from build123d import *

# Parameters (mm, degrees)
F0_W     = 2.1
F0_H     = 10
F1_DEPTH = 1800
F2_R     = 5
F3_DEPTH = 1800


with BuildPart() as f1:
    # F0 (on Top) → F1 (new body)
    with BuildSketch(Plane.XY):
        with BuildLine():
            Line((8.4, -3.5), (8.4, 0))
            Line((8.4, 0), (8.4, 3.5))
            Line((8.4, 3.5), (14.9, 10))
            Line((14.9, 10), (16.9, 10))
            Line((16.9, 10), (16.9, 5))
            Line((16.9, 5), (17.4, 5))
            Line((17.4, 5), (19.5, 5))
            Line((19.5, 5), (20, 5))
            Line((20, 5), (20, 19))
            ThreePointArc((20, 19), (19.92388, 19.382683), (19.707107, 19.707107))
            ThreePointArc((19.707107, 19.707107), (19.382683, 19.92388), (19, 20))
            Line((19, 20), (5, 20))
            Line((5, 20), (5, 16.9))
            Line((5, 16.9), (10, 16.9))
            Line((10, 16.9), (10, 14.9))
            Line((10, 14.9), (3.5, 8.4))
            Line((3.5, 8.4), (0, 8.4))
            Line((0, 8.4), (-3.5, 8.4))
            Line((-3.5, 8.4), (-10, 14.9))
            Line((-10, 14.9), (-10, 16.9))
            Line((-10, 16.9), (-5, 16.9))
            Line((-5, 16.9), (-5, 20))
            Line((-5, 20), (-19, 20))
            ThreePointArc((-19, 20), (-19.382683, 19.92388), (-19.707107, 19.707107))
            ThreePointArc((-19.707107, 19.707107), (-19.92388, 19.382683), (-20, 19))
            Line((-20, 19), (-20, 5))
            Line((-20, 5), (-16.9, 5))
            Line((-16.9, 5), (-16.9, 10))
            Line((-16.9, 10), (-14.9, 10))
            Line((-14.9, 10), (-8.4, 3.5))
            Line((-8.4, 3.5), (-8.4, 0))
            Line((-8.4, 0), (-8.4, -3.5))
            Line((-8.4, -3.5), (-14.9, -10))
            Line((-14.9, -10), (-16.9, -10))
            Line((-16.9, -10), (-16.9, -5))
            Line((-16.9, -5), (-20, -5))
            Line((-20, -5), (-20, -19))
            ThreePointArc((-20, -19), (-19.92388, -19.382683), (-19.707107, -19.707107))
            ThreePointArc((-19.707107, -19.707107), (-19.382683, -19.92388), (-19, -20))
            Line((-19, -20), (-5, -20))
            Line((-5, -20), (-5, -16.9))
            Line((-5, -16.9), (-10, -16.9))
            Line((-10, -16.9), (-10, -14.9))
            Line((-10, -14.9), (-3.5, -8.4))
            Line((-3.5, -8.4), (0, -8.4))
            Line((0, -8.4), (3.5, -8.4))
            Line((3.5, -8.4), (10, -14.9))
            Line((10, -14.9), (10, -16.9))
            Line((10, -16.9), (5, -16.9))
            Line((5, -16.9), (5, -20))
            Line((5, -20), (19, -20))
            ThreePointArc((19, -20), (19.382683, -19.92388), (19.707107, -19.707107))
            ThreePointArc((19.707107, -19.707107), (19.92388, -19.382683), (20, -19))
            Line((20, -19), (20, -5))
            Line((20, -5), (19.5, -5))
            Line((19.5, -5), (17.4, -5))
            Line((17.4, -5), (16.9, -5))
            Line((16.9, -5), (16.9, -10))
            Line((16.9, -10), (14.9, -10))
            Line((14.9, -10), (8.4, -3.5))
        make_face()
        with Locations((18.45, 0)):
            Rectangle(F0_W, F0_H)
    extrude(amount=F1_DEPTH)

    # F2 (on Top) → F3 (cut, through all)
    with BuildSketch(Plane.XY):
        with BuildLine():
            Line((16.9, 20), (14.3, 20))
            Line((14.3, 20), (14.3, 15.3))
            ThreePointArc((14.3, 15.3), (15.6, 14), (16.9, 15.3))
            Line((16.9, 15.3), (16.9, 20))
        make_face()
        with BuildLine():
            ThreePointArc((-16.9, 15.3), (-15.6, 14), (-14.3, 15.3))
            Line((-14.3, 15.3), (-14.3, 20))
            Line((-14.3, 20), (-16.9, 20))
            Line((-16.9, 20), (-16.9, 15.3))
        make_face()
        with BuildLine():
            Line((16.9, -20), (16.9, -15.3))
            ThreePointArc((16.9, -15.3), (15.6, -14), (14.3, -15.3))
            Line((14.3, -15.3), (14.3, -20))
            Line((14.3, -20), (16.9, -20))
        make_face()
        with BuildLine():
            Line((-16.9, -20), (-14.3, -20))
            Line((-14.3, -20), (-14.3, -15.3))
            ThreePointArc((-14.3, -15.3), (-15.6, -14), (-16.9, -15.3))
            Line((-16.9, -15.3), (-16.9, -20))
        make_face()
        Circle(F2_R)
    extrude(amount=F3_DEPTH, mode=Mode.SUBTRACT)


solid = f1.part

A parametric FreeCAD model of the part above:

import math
import FreeCAD as App
import Part
import Sketcher

doc = App.newDocument("Part")
params = doc.addObject("Spreadsheet::Sheet", "Params")
for row, (alias, value) in enumerate([
    ("sketch1_radius", "0.999999 mm"),
    ("sketch1_width", "14 mm"),
    ("sketch1_width2", "5 mm"),
    ("sketch1_width3", "7 mm"),
    ("sketch1_width4", "2 mm"),
    ("pad1_length", "1800 mm"),
    ("sketch2_diameter", "10 mm"),
    ("sketch2_radius", "1.3 mm"),
    ("sketch2_height", "4.7 mm"),
], start=1):
    params.set(f"A{row}", alias)
    params.set(f"B{row}", "=" + value)
    params.setAlias(f"B{row}", alias)

body = doc.addObject("PartDesign::Body", "Body")

# Sketch on XY plane
sketch1 = doc.addObject("Sketcher::SketchObject", "Sketch")
body.addObject(sketch1)
sketch1.AttachmentSupport = (doc.XY_Plane, [""])
sketch1.MapMode = "FlatFace"
sketch1.addGeometry([
    Part.LineSegment(App.Vector(19.5, 5, 0), App.Vector(20, 5, 0)),  # 0
    Part.LineSegment(App.Vector(20, 5, 0), App.Vector(20, 19, 0)),  # 1
    Part.ArcOfCircle(Part.Circle(App.Vector(19, 19, 0), App.Vector(0, 0, 1), 1), math.radians(0), math.radians(45)),  # 2
    Part.ArcOfCircle(Part.Circle(App.Vector(19, 19, 0), App.Vector(0, 0, 1), 1), math.radians(45), math.radians(90)),  # 3
    Part.LineSegment(App.Vector(19, 20, 0), App.Vector(5, 20, 0)),  # 4
    Part.LineSegment(App.Vector(5, 20, 0), App.Vector(5, 16.9, 0)),  # 5
    Part.LineSegment(App.Vector(5, 16.9, 0), App.Vector(10, 16.9, 0)),  # 6
    Part.LineSegment(App.Vector(10, 16.9, 0), App.Vector(10, 14.9, 0)),  # 7
    Part.LineSegment(App.Vector(10, 14.9, 0), App.Vector(3.5, 8.4, 0)),  # 8
    Part.LineSegment(App.Vector(3.5, 8.4, 0), App.Vector(-3.5, 8.4, 0)),  # 9
    Part.LineSegment(App.Vector(-3.5, 8.4, 0), App.Vector(-10, 14.9, 0)),  # 10
    Part.LineSegment(App.Vector(-10, 14.9, 0), App.Vector(-10, 16.9, 0)),  # 11
    Part.LineSegment(App.Vector(-10, 16.9, 0), App.Vector(-5, 16.9, 0)),  # 12
    Part.LineSegment(App.Vector(-5, 16.9, 0), App.Vector(-5, 20, 0)),  # 13
    Part.LineSegment(App.Vector(-5, 20, 0), App.Vector(-19, 20, 0)),  # 14
    Part.ArcOfCircle(Part.Circle(App.Vector(-19, 19, 0), App.Vector(0, 0, 1), 1), math.radians(90), math.radians(135)),  # 15
    Part.ArcOfCircle(Part.Circle(App.Vector(-19, 19, 0), App.Vector(0, 0, 1), 1), math.radians(135), math.radians(180)),  # 16
    Part.LineSegment(App.Vector(-20, 19, 0), App.Vector(-20, 5, 0)),  # 17
    Part.LineSegment(App.Vector(-20, 5, 0), App.Vector(-16.9, 5, 0)),  # 18
    Part.LineSegment(App.Vector(-16.9, 5, 0), App.Vector(-16.9, 10, 0)),  # 19
    Part.LineSegment(App.Vector(-16.9, 10, 0), App.Vector(-14.9, 10, 0)),  # 20
    Part.LineSegment(App.Vector(-14.9, 10, 0), App.Vector(-8.4, 3.5, 0)),  # 21
    Part.LineSegment(App.Vector(-8.4, 3.5, 0), App.Vector(-8.4, -3.5, 0)),  # 22
    Part.LineSegment(App.Vector(-8.4, -3.5, 0), App.Vector(-14.9, -10, 0)),  # 23
    Part.LineSegment(App.Vector(-14.9, -10, 0), App.Vector(-16.9, -10, 0)),  # 24
    Part.LineSegment(App.Vector(-16.9, -10, 0), App.Vector(-16.9, -5, 0)),  # 25
    Part.LineSegment(App.Vector(-16.9, -5, 0), App.Vector(-20, -5, 0)),  # 26
    Part.LineSegment(App.Vector(-20, -5, 0), App.Vector(-20, -19, 0)),  # 27
    Part.ArcOfCircle(Part.Circle(App.Vector(-19, -19, 0), App.Vector(0, 0, 1), 1), math.radians(180), math.radians(225)),  # 28
    Part.ArcOfCircle(Part.Circle(App.Vector(-19, -19, 0), App.Vector(0, 0, 1), 1), math.radians(-135), math.radians(-90)),  # 29
    Part.LineSegment(App.Vector(-19, -20, 0), App.Vector(-5, -20, 0)),  # 30
    Part.LineSegment(App.Vector(-5, -20, 0), App.Vector(-5, -16.9, 0)),  # 31
    Part.LineSegment(App.Vector(-5, -16.9, 0), App.Vector(-10, -16.9, 0)),  # 32
    Part.LineSegment(App.Vector(-10, -16.9, 0), App.Vector(-10, -14.9, 0)),  # 33
    Part.LineSegment(App.Vector(-10, -14.9, 0), App.Vector(-3.5, -8.4, 0)),  # 34
    Part.LineSegment(App.Vector(-3.5, -8.4, 0), App.Vector(3.5, -8.4, 0)),  # 35
    Part.LineSegment(App.Vector(3.5, -8.4, 0), App.Vector(10, -14.9, 0)),  # 36
    Part.LineSegment(App.Vector(10, -14.9, 0), App.Vector(10, -16.9, 0)),  # 37
    Part.LineSegment(App.Vector(10, -16.9, 0), App.Vector(5, -16.9, 0)),  # 38
    Part.LineSegment(App.Vector(5, -16.9, 0), App.Vector(5, -20, 0)),  # 39
    Part.LineSegment(App.Vector(5, -20, 0), App.Vector(19, -20, 0)),  # 40
    Part.ArcOfCircle(Part.Circle(App.Vector(19, -19, 0), App.Vector(0, 0, 1), 1), math.radians(-90), math.radians(-45)),  # 41
    Part.ArcOfCircle(Part.Circle(App.Vector(19, -19, 0), App.Vector(0, 0, 1), 1), math.radians(-45), math.radians(0)),  # 42
    Part.LineSegment(App.Vector(20, -19, 0), App.Vector(20, -5, 0)),  # 43
    Part.LineSegment(App.Vector(20, -5, 0), App.Vector(19.5, -5, 0)),  # 44
    Part.LineSegment(App.Vector(19.5, -5, 0), App.Vector(19.5, 5, 0)),  # 45
    Part.LineSegment(App.Vector(8.4, -3.5, 0), App.Vector(8.4, 3.5, 0)),  # 46
    Part.LineSegment(App.Vector(8.4, 3.5, 0), App.Vector(14.9, 10, 0)),  # 47
    Part.LineSegment(App.Vector(14.9, 10, 0), App.Vector(16.9, 10, 0)),  # 48
    Part.LineSegment(App.Vector(16.9, 10, 0), App.Vector(16.9, 5, 0)),  # 49
    Part.LineSegment(App.Vector(16.9, 5, 0), App.Vector(17.4, 5, 0)),  # 50
    Part.LineSegment(App.Vector(17.4, 5, 0), App.Vector(17.4, -5, 0)),  # 51
    Part.LineSegment(App.Vector(17.4, -5, 0), App.Vector(16.9, -5, 0)),  # 52
    Part.LineSegment(App.Vector(16.9, -5, 0), App.Vector(16.9, -10, 0)),  # 53
    Part.LineSegment(App.Vector(16.9, -10, 0), App.Vector(14.9, -10, 0)),  # 54
    Part.LineSegment(App.Vector(14.9, -10, 0), App.Vector(8.4, -3.5, 0)),  # 55
], False)
sketch1.addConstraint([
    Sketcher.Constraint("Coincident", 0, 2, 1, 1),
    Sketcher.Constraint("Tangent", 1, 2, 2, 1),
    Sketcher.Constraint("Tangent", 2, 2, 3, 1),
    Sketcher.Constraint("Tangent", 3, 2, 4, 1),
    Sketcher.Constraint("Coincident", 4, 2, 5, 1),
    Sketcher.Constraint("Coincident", 5, 2, 6, 1),
    Sketcher.Constraint("Coincident", 6, 2, 7, 1),
    Sketcher.Constraint("Coincident", 7, 2, 8, 1),
    Sketcher.Constraint("Coincident", 8, 2, 9, 1),
    Sketcher.Constraint("Coincident", 9, 2, 10, 1),
    Sketcher.Constraint("Coincident", 10, 2, 11, 1),
    Sketcher.Constraint("Coincident", 11, 2, 12, 1),
    Sketcher.Constraint("Coincident", 12, 2, 13, 1),
    Sketcher.Constraint("Coincident", 13, 2, 14, 1),
    Sketcher.Constraint("Tangent", 14, 2, 15, 1),
    Sketcher.Constraint("Tangent", 15, 2, 16, 1),
    Sketcher.Constraint("Tangent", 16, 2, 17, 1),
    Sketcher.Constraint("Coincident", 17, 2, 18, 1),
    Sketcher.Constraint("Coincident", 18, 2, 19, 1),
    Sketcher.Constraint("Coincident", 19, 2, 20, 1),
    Sketcher.Constraint("Coincident", 20, 2, 21, 1),
    Sketcher.Constraint("Coincident", 21, 2, 22, 1),
    Sketcher.Constraint("Coincident", 22, 2, 23, 1),
    Sketcher.Constraint("Coincident", 23, 2, 24, 1),
    Sketcher.Constraint("Coincident", 24, 2, 25, 1),
    Sketcher.Constraint("Coincident", 25, 2, 26, 1),
    Sketcher.Constraint("Coincident", 26, 2, 27, 1),
    Sketcher.Constraint("Tangent", 27, 2, 28, 1),
    Sketcher.Constraint("Tangent", 28, 2, 29, 1),
    Sketcher.Constraint("Tangent", 29, 2, 30, 1),
    Sketcher.Constraint("Coincident", 30, 2, 31, 1),
    Sketcher.Constraint("Coincident", 31, 2, 32, 1),
    Sketcher.Constraint("Coincident", 32, 2, 33, 1),
    Sketcher.Constraint("Coincident", 33, 2, 34, 1),
    Sketcher.Constraint("Coincident", 34, 2, 35, 1),
    Sketcher.Constraint("Coincident", 35, 2, 36, 1),
    Sketcher.Constraint("Coincident", 36, 2, 37, 1),
    Sketcher.Constraint("Coincident", 37, 2, 38, 1),
    Sketcher.Constraint("Coincident", 38, 2, 39, 1),
    Sketcher.Constraint("Coincident", 39, 2, 40, 1),
    Sketcher.Constraint("Tangent", 40, 2, 41, 1),
    Sketcher.Constraint("Tangent", 41, 2, 42, 1),
    Sketcher.Constraint("Tangent", 42, 2, 43, 1),
    Sketcher.Constraint("Coincident", 43, 2, 44, 1),
    Sketcher.Constraint("Coincident", 44, 2, 45, 1),
    Sketcher.Constraint("Coincident", 45, 2, 0, 1),
    Sketcher.Constraint("Coincident", 46, 2, 47, 1),
    Sketcher.Constraint("Coincident", 47, 2, 48, 1),
    Sketcher.Constraint("Coincident", 48, 2, 49, 1),
    Sketcher.Constraint("Coincident", 49, 2, 50, 1),
    Sketcher.Constraint("Coincident", 50, 2, 51, 1),
    Sketcher.Constraint("Coincident", 51, 2, 52, 1),
    Sketcher.Constraint("Coincident", 52, 2, 53, 1),
    Sketcher.Constraint("Coincident", 53, 2, 54, 1),
    Sketcher.Constraint("Coincident", 54, 2, 55, 1),
    Sketcher.Constraint("Coincident", 55, 2, 46, 1),
    Sketcher.Constraint("Horizontal", 0),
    Sketcher.Constraint("Vertical", 1),
    Sketcher.Constraint("Horizontal", 4),
    Sketcher.Constraint("Vertical", 5),
    Sketcher.Constraint("Horizontal", 6),
    Sketcher.Constraint("Vertical", 7),
    Sketcher.Constraint("Horizontal", 9),
    Sketcher.Constraint("Vertical", 11),
    Sketcher.Constraint("Horizontal", 12),
    Sketcher.Constraint("Vertical", 13),
    Sketcher.Constraint("Horizontal", 14),
    Sketcher.Constraint("Vertical", 17),
    Sketcher.Constraint("Horizontal", 18),
    Sketcher.Constraint("Vertical", 19),
    Sketcher.Constraint("Horizontal", 20),
    Sketcher.Constraint("Vertical", 22),
    Sketcher.Constraint("Horizontal", 24),
    Sketcher.Constraint("Vertical", 25),
    Sketcher.Constraint("Horizontal", 26),
    Sketcher.Constraint("Vertical", 27),
    Sketcher.Constraint("Horizontal", 30),
    Sketcher.Constraint("Vertical", 31),
    Sketcher.Constraint("Horizontal", 32),
    Sketcher.Constraint("Vertical", 33),
    Sketcher.Constraint("Horizontal", 35),
    Sketcher.Constraint("Vertical", 37),
    Sketcher.Constraint("Horizontal", 38),
    Sketcher.Constraint("Vertical", 39),
    Sketcher.Constraint("Horizontal", 40),
    Sketcher.Constraint("Vertical", 43),
    Sketcher.Constraint("Horizontal", 44),
    Sketcher.Constraint("Vertical", 45),
    Sketcher.Constraint("Vertical", 46),
    Sketcher.Constraint("Horizontal", 48),
    Sketcher.Constraint("Vertical", 49),
    Sketcher.Constraint("Horizontal", 50),
    Sketcher.Constraint("Vertical", 51),
    Sketcher.Constraint("Horizontal", 52),
    Sketcher.Constraint("Vertical", 53),
    Sketcher.Constraint("Horizontal", 54),
    Sketcher.Constraint("Equal", 2, 3),
    Sketcher.Constraint("Equal", 3, 15),
    Sketcher.Constraint("Equal", 15, 16),
    Sketcher.Constraint("Equal", 16, 28),
    Sketcher.Constraint("Equal", 28, 29),
    Sketcher.Constraint("Equal", 29, 41),
    Sketcher.Constraint("Equal", 41, 42),
    Sketcher.Constraint("Symmetric", 2, 3, 28, 3, -1, 1),
    Sketcher.Constraint("Symmetric", 15, 3, 41, 3, -1, 1),
    Sketcher.Constraint("Symmetric", 5, 2, 31, 2, -1, 1),
    Sketcher.Constraint("Symmetric", 7, 2, 33, 2, -1, 1),
    Sketcher.Constraint("Symmetric", 8, 2, 34, 2, -1, 1),
    Sketcher.Constraint("Symmetric", 10, 2, 36, 2, -1, 1),
    Sketcher.Constraint("Symmetric", 12, 2, 38, 2, -1, 1),
    Sketcher.Constraint("Symmetric", 22, 2, 46, 2, -1, 1),
    Sketcher.Constraint("Symmetric", 23, 2, 47, 2, -1, 1),
    Sketcher.Constraint("Symmetric", 25, 2, 49, 2, -1, 1),
    Sketcher.Constraint("Symmetric", 18, 2, 52, 2, -1, 1),
    Sketcher.Constraint("Symmetric", 20, 2, 54, 2, -1, 1),
    Sketcher.Constraint("Symmetric", 2, 3, 15, 3, -2),
    Sketcher.Constraint("Symmetric", 7, 2, 10, 2, -2),
    Sketcher.Constraint("Symmetric", 5, 2, 12, 2, -2),
    Sketcher.Constraint("Symmetric", 20, 2, 47, 2, -2),
    Sketcher.Constraint("Symmetric", 18, 2, 49, 2, -2),
    Sketcher.Constraint("Perpendicular", 8, 10),
    Sketcher.Constraint("Parallel", 10, 21),
    Sketcher.Constraint("Perpendicular", 21, 23),
    Sketcher.Constraint("Perpendicular", 34, 36),
    Sketcher.Constraint("Perpendicular", 47, 55),
    Sketcher.Constraint("Horizontal", 2, 2, 15, 2),
    Sketcher.Constraint("Horizontal", 0, 2, 17, 2),
    Sketcher.Constraint("Horizontal", 28, 2, 41, 2),
    Sketcher.Constraint("Horizontal", 26, 2, 43, 2),
    Sketcher.Constraint("Horizontal", 21, 2, 46, 2),
    Sketcher.Constraint("Vertical", 15, 2, 28, 2),
    Sketcher.Constraint("Equal", 44, 50),
    Sketcher.Constraint("Equal", 40, 1),
    Sketcher.Constraint("Equal", 26, 5),
    Sketcher.Constraint("Equal", 54, 7),
    Sketcher.Constraint("Equal", 38, 19),
    Sketcher.Constraint("Equal", 35, 22),
    Sketcher.Constraint("Equal", 10, 21),
    Sketcher.Constraint("Radius", 2, 0.999999),
    Sketcher.Constraint("DistanceX", 4, 2, 4, 1, 14.0),
    Sketcher.Constraint("DistanceX", 6, 1, 6, 2, 5.0),
    Sketcher.Constraint("DistanceX", 9, 2, 9, 1, 7.0),
    Sketcher.Constraint("DistanceX", 20, 1, 20, 2, 2.0),
    Sketcher.Constraint("DistanceY", 45, 1, 45, 2, 10.0),
    Sketcher.Constraint("DistanceX", 0, 1, 0, 2, 0.5),
    Sketcher.Constraint("DistanceX", 18, 1, 18, 2, 3.1),
    Sketcher.Constraint("DistanceX", -1, 1, 2, 2, 19.707107),
])
sketch1.setExpression("Constraints[138]", "Params.sketch1_radius")
sketch1.setExpression("Constraints[139]", "Params.sketch1_width")
sketch1.setExpression("Constraints[140]", "Params.sketch1_width2")
sketch1.setExpression("Constraints[141]", "Params.sketch1_width3")
sketch1.setExpression("Constraints[142]", "Params.sketch1_width4")
pad1 = doc.addObject("PartDesign::Pad", "Pad")
body.addObject(pad1)
pad1.Profile = sketch1
pad1.setExpression("Length", "Params.pad1_length")

# Sketch on XY plane
sketch2 = doc.addObject("Sketcher::SketchObject", "Sketch001")
body.addObject(sketch2)
sketch2.AttachmentSupport = (doc.XY_Plane, [""])
sketch2.MapMode = "FlatFace"
sketch2.addGeometry([
    Part.LineSegment(App.Vector(16.9, 20, 0), App.Vector(14.3, 20, 0)),  # 0
    Part.LineSegment(App.Vector(14.3, 20, 0), App.Vector(14.3, 15.3, 0)),  # 1
    Part.ArcOfCircle(Part.Circle(App.Vector(15.6, 15.3, 0), App.Vector(0, 0, 1), 1.3), math.radians(180), math.radians(360)),  # 2
    Part.LineSegment(App.Vector(16.9, 15.3, 0), App.Vector(16.9, 20, 0)),  # 3
    Part.ArcOfCircle(Part.Circle(App.Vector(-15.6, 15.3, 0), App.Vector(0, 0, 1), 1.3), math.radians(180), math.radians(360)),  # 4
    Part.LineSegment(App.Vector(-14.3, 15.3, 0), App.Vector(-14.3, 20, 0)),  # 5
    Part.LineSegment(App.Vector(-14.3, 20, 0), App.Vector(-16.9, 20, 0)),  # 6
    Part.LineSegment(App.Vector(-16.9, 20, 0), App.Vector(-16.9, 15.3, 0)),  # 7
    Part.LineSegment(App.Vector(16.9, -20, 0), App.Vector(16.9, -15.3, 0)),  # 8
    Part.ArcOfCircle(Part.Circle(App.Vector(15.6, -15.3, 0), App.Vector(0, 0, 1), 1.3), math.radians(0), math.radians(180)),  # 9
    Part.LineSegment(App.Vector(14.3, -15.3, 0), App.Vector(14.3, -20, 0)),  # 10
    Part.LineSegment(App.Vector(14.3, -20, 0), App.Vector(16.9, -20, 0)),  # 11
    Part.LineSegment(App.Vector(-16.9, -20, 0), App.Vector(-14.3, -20, 0)),  # 12
    Part.LineSegment(App.Vector(-14.3, -20, 0), App.Vector(-14.3, -15.3, 0)),  # 13
    Part.ArcOfCircle(Part.Circle(App.Vector(-15.6, -15.3, 0), App.Vector(0, 0, 1), 1.3), math.radians(0), math.radians(180)),  # 14
    Part.LineSegment(App.Vector(-16.9, -15.3, 0), App.Vector(-16.9, -20, 0)),  # 15
    Part.Circle(App.Vector(0, 0, 0), App.Vector(0, 0, 1), 5),  # 16
], False)
sketch2.addConstraint([
    Sketcher.Constraint("Coincident", 0, 2, 1, 1),
    Sketcher.Constraint("Tangent", 1, 2, 2, 1),
    Sketcher.Constraint("Tangent", 2, 2, 3, 1),
    Sketcher.Constraint("Coincident", 3, 2, 0, 1),
    Sketcher.Constraint("Tangent", 4, 2, 5, 1),
    Sketcher.Constraint("Coincident", 5, 2, 6, 1),
    Sketcher.Constraint("Coincident", 6, 2, 7, 1),
    Sketcher.Constraint("Tangent", 7, 2, 4, 1),
    Sketcher.Constraint("Tangent", 8, 2, 9, 1),
    Sketcher.Constraint("Tangent", 9, 2, 10, 1),
    Sketcher.Constraint("Coincident", 10, 2, 11, 1),
    Sketcher.Constraint("Coincident", 11, 2, 8, 1),
    Sketcher.Constraint("Coincident", 12, 2, 13, 1),
    Sketcher.Constraint("Tangent", 13, 2, 14, 1),
    Sketcher.Constraint("Tangent", 14, 2, 15, 1),
    Sketcher.Constraint("Coincident", 15, 2, 12, 1),
    Sketcher.Constraint("Horizontal", 0),
    Sketcher.Constraint("Vertical", 1),
    Sketcher.Constraint("Vertical", 3),
    Sketcher.Constraint("Vertical", 5),
    Sketcher.Constraint("Horizontal", 6),
    Sketcher.Constraint("Vertical", 7),
    Sketcher.Constraint("Vertical", 8),
    Sketcher.Constraint("Vertical", 10),
    Sketcher.Constraint("Horizontal", 11),
    Sketcher.Constraint("Horizontal", 12),
    Sketcher.Constraint("Vertical", 13),
    Sketcher.Constraint("Vertical", 15),
    Sketcher.Constraint("Coincident", 16, 3, -1, 1),
    Sketcher.Constraint("Equal", 2, 4),
    Sketcher.Constraint("Equal", 4, 9),
    Sketcher.Constraint("Equal", 9, 14),
    Sketcher.Constraint("Symmetric", 4, 3, 9, 3, -1, 1),
    Sketcher.Constraint("Symmetric", 2, 3, 14, 3, -1, 1),
    Sketcher.Constraint("Symmetric", 2, 3, 4, 3, -2),
    Sketcher.Constraint("Horizontal", 3, 2, 5, 2),
    Sketcher.Constraint("Horizontal", 11, 2, 12, 2),
    Sketcher.Constraint("Equal", 7, 8),
    Sketcher.Constraint("Diameter", 16, 10.0),
    Sketcher.Constraint("Radius", 2, 1.3),
    Sketcher.Constraint("DistanceY", 1, 2, 1, 1, 4.7),
    Sketcher.Constraint("DistanceY", -1, 1, 0, 2, 20.0),
    Sketcher.Constraint("DistanceX", -1, 1, 2, 3, 15.6),
])
sketch2.setExpression("Constraints[38]", "Params.sketch2_diameter")
sketch2.setExpression("Constraints[39]", "Params.sketch2_radius")
sketch2.setExpression("Constraints[40]", "Params.sketch2_height")
pocket1 = doc.addObject("PartDesign::Pocket", "Pocket")
body.addObject(pocket1)
pocket1.Profile = sketch2
pocket1.Type = "ThroughAll"
pocket1.Reversed = True

doc.recompute()
